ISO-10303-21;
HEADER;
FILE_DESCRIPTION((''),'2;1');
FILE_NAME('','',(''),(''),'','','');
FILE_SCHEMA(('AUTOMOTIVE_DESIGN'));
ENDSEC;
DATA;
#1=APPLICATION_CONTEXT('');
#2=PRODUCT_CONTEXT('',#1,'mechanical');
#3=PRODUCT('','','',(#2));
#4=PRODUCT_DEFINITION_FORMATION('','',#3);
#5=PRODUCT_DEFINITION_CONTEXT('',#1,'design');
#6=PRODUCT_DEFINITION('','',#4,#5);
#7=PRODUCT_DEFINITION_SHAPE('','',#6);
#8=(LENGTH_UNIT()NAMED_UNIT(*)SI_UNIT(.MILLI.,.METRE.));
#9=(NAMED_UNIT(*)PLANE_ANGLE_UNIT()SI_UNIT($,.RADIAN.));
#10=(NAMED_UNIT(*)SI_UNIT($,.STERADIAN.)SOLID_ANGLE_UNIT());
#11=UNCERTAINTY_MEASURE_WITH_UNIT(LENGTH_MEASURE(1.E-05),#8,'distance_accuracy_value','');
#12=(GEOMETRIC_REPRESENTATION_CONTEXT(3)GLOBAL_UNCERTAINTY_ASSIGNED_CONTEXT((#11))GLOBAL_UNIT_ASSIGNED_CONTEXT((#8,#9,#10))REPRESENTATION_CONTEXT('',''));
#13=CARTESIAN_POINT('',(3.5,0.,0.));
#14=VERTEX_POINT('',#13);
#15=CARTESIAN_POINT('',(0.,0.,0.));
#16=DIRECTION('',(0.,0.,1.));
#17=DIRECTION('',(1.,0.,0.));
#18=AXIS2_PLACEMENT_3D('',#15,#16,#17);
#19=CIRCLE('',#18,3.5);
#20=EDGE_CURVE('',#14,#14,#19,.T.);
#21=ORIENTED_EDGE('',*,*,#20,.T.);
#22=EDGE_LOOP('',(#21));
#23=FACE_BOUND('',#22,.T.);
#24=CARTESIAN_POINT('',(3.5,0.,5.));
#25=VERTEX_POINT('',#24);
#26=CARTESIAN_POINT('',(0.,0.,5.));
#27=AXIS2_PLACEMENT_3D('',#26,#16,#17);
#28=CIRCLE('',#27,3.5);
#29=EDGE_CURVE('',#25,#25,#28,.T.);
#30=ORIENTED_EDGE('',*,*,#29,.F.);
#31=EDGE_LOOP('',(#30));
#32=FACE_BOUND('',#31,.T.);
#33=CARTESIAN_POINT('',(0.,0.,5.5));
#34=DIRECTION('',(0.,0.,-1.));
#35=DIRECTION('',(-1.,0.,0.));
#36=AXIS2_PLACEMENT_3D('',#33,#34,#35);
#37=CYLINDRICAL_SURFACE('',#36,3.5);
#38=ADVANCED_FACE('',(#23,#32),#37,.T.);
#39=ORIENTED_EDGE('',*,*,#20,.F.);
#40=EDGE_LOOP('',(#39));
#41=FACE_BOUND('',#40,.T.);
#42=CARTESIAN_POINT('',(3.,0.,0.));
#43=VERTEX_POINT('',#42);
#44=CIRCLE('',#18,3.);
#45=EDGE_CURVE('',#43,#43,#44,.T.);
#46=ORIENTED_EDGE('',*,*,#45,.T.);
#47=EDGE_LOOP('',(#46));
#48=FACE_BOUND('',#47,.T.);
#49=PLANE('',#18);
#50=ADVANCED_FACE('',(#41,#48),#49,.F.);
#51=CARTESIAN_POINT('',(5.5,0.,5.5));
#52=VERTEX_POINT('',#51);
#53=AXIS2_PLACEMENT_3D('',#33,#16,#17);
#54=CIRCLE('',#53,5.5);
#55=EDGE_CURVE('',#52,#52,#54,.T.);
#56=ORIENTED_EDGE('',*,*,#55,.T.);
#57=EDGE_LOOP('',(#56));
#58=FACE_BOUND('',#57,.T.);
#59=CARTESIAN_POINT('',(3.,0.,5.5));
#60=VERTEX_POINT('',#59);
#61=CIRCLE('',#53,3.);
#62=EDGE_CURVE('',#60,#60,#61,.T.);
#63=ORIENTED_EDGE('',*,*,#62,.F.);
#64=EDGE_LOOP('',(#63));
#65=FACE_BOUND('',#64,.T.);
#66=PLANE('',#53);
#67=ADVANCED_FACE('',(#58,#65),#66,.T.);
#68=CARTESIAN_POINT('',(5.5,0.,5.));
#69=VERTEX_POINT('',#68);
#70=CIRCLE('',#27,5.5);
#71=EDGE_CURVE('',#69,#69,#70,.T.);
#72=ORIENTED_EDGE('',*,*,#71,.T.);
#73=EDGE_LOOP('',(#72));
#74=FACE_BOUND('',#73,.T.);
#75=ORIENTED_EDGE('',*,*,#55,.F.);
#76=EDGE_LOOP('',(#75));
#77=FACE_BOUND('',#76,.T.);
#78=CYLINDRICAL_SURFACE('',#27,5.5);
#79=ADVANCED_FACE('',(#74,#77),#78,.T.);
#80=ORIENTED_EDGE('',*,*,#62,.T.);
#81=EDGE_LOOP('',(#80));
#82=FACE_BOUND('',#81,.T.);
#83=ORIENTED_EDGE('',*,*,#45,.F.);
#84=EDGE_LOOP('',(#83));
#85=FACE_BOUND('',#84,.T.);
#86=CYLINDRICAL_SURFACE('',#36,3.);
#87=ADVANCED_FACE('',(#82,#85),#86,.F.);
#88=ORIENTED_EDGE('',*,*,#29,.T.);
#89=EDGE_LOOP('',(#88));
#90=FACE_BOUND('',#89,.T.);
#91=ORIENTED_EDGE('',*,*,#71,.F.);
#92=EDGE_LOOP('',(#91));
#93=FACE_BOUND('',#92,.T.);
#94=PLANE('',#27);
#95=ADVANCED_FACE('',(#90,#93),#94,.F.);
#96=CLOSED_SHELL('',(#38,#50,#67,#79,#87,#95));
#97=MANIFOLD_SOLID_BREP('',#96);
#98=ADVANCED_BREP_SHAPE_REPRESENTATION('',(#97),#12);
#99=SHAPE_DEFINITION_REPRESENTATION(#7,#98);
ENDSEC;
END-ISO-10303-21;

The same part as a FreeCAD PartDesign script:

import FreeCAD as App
import Part
import Sketcher
from FreeCAD import Vector

doc = App.newDocument("Part")
params = doc.addObject("Spreadsheet::Sheet", "Params")
for row, (alias, value) in enumerate([
    ("sketch1_diameter", "7 mm"),
    ("sketch1_diameter2", "6 mm"),
    ("pad1_length", "5.5 mm"),
    ("sketch2_diameter", "11 mm"),
    ("sketch2_diameter2", "6 mm"),
    ("pad2_length", "0.5 mm"),
], start=1):
    params.set(f"A{row}", alias)
    params.set(f"B{row}", "=" + value)
    params.setAlias(f"B{row}", alias)

body = doc.addObject("PartDesign::Body", "Body")

# Sketch on XY plane
sketch1 = body.newObject("Sketcher::SketchObject", "Sketch")
sketch1.AttachmentSupport = (doc.getObject("XY_Plane"), [""])
sketch1.MapMode = "FlatFace"
sketch1.addGeometry([
    Part.Circle(Vector(0, 0, 0), Vector(0, 0, 1), 3.5),
    Part.Circle(Vector(0, 0, 0), Vector(0, 0, 1), 3),
], False)
sketch1.addConstraint([
    Sketcher.Constraint("Coincident", 0, 3, -1, 1),
    Sketcher.Constraint("Coincident", 1, 3, -1, 1),
    Sketcher.Constraint("Diameter", 0, 7.0),
    Sketcher.Constraint("Diameter", 1, 6.0),
])
sketch1.setExpression("Constraints[2]", "Params.sketch1_diameter")
sketch1.setExpression("Constraints[3]", "Params.sketch1_diameter2")
pad1 = body.newObject("PartDesign::Pad", "Pad")
pad1.Profile = sketch1
pad1.setExpression("Length", "Params.pad1_length")

# Sketch on XY plane
sketch2 = body.newObject("Sketcher::SketchObject", "Sketch001")
sketch2.AttachmentSupport = (doc.getObject("XY_Plane"), [""])
sketch2.MapMode = "FlatFace"
sketch2.AttachmentOffset = App.Placement(Vector(0, 0, 5), App.Rotation())
sketch2.addGeometry([
    Part.Circle(Vector(0, 0, 0), Vector(0, 0, 1), 5.5),
    Part.Circle(Vector(0, 0, 0), Vector(0, 0, 1), 3),
], False)
sketch2.addConstraint([
    Sketcher.Constraint("Coincident", 0, 3, -1, 1),
    Sketcher.Constraint("Coincident", 1, 3, -1, 1),
    Sketcher.Constraint("Diameter", 0, 11.0),
    Sketcher.Constraint("Diameter", 1, 6.0),
])
sketch2.setExpression("Constraints[2]", "Params.sketch2_diameter")
sketch2.setExpression("Constraints[3]", "Params.sketch2_diameter2")
pad2 = body.newObject("PartDesign::Pad", "Pad001")
pad2.Profile = sketch2
pad2.setExpression("Length", "Params.pad2_length")

doc.recompute()
